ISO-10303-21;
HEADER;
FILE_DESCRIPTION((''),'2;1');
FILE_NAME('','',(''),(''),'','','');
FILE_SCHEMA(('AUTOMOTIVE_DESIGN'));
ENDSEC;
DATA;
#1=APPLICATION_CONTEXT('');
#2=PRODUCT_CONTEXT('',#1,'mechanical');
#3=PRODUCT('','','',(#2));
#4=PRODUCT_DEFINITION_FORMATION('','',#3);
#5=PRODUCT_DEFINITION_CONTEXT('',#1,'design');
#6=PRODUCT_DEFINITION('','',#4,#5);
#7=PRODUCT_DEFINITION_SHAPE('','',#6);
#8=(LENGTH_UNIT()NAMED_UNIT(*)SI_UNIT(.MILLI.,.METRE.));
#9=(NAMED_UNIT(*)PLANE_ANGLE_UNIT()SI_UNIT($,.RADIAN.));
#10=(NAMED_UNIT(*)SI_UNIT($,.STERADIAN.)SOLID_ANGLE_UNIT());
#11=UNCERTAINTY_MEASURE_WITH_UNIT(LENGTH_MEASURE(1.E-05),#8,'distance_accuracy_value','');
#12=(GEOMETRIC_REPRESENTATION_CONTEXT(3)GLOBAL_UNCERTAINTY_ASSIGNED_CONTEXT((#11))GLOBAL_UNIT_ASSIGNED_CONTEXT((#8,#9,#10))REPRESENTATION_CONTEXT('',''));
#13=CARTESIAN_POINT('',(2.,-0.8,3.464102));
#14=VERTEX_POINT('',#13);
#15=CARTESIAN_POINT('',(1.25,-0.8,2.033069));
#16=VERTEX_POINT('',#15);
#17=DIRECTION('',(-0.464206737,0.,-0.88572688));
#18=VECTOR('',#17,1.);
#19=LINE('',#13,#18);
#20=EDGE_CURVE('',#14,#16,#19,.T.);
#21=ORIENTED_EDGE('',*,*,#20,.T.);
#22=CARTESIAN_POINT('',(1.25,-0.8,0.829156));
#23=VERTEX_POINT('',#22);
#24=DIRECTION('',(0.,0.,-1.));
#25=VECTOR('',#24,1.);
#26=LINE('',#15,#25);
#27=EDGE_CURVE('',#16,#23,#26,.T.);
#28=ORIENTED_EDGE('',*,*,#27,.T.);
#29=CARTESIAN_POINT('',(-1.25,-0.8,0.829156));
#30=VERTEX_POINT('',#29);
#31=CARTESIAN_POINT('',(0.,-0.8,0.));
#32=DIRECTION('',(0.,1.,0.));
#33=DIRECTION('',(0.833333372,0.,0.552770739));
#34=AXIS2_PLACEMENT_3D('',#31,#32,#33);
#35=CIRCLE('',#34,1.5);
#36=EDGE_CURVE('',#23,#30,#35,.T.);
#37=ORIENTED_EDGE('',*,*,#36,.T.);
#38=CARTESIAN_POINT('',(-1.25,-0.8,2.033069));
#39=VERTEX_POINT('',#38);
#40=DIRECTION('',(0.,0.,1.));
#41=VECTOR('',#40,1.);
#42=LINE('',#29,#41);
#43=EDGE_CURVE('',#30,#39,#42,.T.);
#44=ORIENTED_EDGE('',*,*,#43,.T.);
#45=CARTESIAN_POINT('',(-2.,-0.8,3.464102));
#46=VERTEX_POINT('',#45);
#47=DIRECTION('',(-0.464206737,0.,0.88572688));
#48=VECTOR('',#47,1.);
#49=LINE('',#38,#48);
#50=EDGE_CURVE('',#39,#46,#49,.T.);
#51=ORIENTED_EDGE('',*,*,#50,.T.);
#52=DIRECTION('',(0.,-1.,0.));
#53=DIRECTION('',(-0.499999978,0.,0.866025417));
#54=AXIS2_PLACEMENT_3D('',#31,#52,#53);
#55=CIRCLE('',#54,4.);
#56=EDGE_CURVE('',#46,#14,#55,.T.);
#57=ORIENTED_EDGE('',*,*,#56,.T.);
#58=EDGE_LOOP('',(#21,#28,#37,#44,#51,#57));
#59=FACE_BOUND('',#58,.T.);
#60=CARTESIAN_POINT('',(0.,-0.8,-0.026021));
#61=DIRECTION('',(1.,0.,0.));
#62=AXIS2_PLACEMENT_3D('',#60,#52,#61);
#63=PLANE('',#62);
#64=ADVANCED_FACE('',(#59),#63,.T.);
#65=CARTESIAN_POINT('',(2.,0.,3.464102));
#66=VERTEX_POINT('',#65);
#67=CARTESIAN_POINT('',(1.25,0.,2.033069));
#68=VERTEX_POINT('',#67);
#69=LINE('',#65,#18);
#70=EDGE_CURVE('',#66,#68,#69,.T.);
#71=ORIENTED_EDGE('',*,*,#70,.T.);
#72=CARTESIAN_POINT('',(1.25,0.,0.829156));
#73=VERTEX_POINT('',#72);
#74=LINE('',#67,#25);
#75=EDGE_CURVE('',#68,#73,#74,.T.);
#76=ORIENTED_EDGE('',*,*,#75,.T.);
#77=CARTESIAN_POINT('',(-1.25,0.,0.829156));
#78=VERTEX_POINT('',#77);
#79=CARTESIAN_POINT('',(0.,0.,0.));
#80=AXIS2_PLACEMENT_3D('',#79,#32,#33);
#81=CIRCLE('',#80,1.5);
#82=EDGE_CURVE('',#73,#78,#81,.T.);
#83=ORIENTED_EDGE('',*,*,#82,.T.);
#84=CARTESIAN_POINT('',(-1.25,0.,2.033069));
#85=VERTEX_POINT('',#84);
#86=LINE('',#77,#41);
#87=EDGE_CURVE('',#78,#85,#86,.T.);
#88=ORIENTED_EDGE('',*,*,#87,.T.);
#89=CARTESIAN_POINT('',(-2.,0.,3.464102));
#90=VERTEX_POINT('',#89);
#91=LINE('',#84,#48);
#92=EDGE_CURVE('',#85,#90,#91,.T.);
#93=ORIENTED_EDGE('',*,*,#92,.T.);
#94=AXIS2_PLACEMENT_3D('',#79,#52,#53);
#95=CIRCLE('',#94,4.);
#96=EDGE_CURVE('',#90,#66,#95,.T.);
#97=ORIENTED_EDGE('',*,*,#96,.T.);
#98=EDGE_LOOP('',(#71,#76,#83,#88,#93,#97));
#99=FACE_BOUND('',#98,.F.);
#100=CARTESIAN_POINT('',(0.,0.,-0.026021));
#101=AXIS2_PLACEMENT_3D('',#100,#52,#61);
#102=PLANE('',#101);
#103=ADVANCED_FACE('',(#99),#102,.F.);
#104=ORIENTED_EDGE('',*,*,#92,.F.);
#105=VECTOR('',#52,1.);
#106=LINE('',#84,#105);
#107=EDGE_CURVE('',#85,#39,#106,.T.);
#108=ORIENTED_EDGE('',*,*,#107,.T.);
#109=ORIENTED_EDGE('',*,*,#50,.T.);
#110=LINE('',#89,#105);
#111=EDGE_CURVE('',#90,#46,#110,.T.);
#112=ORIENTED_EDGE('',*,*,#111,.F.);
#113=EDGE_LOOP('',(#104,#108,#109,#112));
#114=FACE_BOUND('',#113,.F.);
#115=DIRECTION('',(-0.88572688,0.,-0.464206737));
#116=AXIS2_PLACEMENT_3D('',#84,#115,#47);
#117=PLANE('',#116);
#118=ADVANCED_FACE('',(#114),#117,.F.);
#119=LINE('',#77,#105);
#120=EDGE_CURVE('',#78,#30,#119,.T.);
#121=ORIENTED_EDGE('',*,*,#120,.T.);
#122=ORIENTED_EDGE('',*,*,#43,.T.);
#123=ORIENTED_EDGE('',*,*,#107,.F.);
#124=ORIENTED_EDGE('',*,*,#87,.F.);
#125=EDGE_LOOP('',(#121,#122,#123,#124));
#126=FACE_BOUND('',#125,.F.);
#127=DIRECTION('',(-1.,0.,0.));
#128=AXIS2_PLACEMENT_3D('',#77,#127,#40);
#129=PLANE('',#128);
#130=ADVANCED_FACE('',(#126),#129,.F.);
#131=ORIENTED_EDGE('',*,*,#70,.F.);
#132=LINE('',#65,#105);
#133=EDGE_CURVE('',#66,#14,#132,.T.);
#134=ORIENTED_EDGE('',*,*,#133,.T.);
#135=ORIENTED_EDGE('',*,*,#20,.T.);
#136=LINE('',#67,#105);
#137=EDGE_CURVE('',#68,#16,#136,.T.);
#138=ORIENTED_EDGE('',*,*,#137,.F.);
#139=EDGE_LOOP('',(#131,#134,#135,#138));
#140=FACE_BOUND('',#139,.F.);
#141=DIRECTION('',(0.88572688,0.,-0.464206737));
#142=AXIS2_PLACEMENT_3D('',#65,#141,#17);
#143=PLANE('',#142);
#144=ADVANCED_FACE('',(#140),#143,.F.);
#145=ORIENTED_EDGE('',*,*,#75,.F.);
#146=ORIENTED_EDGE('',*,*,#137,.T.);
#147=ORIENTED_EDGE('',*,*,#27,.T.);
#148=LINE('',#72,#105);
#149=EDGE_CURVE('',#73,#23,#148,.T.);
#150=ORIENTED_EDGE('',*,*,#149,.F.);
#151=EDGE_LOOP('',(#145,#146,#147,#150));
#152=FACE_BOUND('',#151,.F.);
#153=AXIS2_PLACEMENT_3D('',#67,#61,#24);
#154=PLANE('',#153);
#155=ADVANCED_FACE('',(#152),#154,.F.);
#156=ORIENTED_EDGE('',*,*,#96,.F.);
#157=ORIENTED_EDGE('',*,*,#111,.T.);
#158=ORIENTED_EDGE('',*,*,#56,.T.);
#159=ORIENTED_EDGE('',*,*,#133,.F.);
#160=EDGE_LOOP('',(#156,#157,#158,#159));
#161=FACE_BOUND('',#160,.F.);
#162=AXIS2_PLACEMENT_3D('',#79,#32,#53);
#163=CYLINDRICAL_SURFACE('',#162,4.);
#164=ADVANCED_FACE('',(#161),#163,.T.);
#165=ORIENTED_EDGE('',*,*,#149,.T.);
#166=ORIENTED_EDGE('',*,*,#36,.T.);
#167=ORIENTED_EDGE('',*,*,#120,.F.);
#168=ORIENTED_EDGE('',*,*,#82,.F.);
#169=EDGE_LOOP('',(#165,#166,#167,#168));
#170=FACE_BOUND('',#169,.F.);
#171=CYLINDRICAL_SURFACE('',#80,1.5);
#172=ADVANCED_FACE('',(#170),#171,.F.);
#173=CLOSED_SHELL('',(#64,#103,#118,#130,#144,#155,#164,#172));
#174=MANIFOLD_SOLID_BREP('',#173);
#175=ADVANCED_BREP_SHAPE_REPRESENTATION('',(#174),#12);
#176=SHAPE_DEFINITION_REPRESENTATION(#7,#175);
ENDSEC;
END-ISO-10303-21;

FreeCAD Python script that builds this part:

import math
import FreeCAD as App
import Part
import Sketcher

V = App.Vector
Q = App.Units.Quantity

doc = App.newDocument("Part")
body = doc.addObject("PartDesign::Body", "Body")

# Sketch on XZ plane
sketch1 = doc.addObject("Sketcher::SketchObject", "Sketch")
body.addObject(sketch1)
sketch1.AttachmentSupport = (doc.XZ_Plane, [""])
sketch1.MapMode = "FlatFace"
sketch1.addGeometry([
    Part.LineSegment(V(-1.2, 2, 0), V(-2, 3.5, 0)),  # 0
    Part.ArcOfCircle(Part.Circle(V(0, 0, 0), V(0, 0, 1), 4), math.radians(120), math.radians(420)),  # 1
    Part.LineSegment(V(2, 3.5, 0), V(1.2, 2, 0)),  # 2
    Part.LineSegment(V(1.2, 2, 0), V(1.2, 0.8, 0)),  # 3
    Part.ArcOfCircle(Part.Circle(V(0, 0, 0), V(0, 0, 1), 1.5), math.radians(146), math.radians(394)),  # 4
    Part.LineSegment(V(-1.2, 0.8, 0), V(-1.2, 2, 0)),  # 5
], False)
sketch1.addConstraint([
    Sketcher.Constraint("Coincident", 0, 2, 1, 1),
    Sketcher.Constraint("Coincident", 1, 2, 2, 1),
    Sketcher.Constraint("Coincident", 2, 2, 3, 1),
    Sketcher.Constraint("Coincident", 3, 2, 4, 2),
    Sketcher.Constraint("Coincident", 4, 1, 5, 1),
    Sketcher.Constraint("Coincident", 5, 2, 0, 1),
    Sketcher.Constraint("Vertical", 3),
    Sketcher.Constraint("Vertical", 5),
    Sketcher.Constraint("Coincident", 1, 3, -1, 1),
    Sketcher.Constraint("Coincident", 4, 3, -1, 1),
    Sketcher.Constraint("Symmetric", 2, 2, 5, 2, -2),
    Sketcher.Constraint("Horizontal", 0, 2, 1, 2),
    Sketcher.Constraint("Radius", 1, Q("4 mm")),
    Sketcher.Constraint("Radius", 4, Q("1.5 mm")),
    Sketcher.Constraint("DistanceX", 0, 2, -1, 1, Q("2 mm")),
    Sketcher.Constraint("DistanceX", 4, 1, 3, 2, Q("2.5 mm")),
    Sketcher.Constraint("Distance", 0, Q("1.615659 mm")),
])
pad1 = doc.addObject("PartDesign::Pad", "Pad")
body.addObject(pad1)
pad1.Profile = sketch1
pad1.Length = 0.8

doc.recompute()
